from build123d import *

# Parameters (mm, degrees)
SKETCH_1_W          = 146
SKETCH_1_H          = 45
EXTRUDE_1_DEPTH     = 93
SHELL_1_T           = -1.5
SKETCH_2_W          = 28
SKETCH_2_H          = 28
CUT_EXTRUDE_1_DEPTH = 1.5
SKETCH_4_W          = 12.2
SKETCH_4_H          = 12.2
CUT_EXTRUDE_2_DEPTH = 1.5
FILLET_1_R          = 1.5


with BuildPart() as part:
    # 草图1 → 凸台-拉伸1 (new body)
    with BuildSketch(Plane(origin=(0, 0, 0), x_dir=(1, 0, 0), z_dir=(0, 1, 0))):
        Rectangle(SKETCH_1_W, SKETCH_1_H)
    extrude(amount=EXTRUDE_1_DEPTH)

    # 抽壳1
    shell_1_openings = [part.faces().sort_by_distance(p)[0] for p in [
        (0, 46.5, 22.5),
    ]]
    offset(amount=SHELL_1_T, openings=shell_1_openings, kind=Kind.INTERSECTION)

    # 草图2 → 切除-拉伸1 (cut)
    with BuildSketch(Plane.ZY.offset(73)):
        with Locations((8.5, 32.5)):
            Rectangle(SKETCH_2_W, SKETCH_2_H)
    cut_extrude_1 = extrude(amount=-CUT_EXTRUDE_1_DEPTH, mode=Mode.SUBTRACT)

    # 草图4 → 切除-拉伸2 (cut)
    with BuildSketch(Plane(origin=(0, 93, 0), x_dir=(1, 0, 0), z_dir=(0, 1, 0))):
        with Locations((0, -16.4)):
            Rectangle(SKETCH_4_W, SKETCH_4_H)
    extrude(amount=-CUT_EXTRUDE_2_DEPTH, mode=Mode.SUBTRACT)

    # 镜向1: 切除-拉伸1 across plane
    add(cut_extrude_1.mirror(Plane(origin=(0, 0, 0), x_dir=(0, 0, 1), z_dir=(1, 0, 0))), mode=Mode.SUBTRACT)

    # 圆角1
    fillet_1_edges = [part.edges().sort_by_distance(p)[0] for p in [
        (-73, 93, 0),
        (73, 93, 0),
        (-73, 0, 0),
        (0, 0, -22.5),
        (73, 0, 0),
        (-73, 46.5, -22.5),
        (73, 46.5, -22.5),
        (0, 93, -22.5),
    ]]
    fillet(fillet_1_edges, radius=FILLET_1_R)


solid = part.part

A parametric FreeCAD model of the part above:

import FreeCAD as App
import Part
import Sketcher


def edges_at(feature, points):
    """Names of the edges that pass closest to the given points."""
    edges = feature.Shape.Edges
    near = lambda p: min(range(len(edges)), key=lambda i: edges[i].distToShape(Part.Vertex(*p))[0])
    return sorted({f"Edge{near(p) + 1}" for p in points})


def faces_at(feature, points):
    """Names of the faces that lie closest to the given points."""
    faces = feature.Shape.Faces
    near = lambda p: min(range(len(faces)), key=lambda i: faces[i].distToShape(Part.Vertex(*p))[0])
    return sorted({f"Face{near(p) + 1}" for p in points})


def add_polygon(sketch, points):
    """Adds a closed chain of lines whose ends are joined by coincident constraints."""
    first, n = sketch.GeometryCount, len(points)
    for a, b in zip(points, points[1:] + points[:1]):
        sketch.addGeometry(Part.LineSegment(App.Vector(*a, 0), App.Vector(*b, 0)), False)
    for i in range(n):
        sketch.addConstraint(Sketcher.Constraint("Coincident", first + i, 2, first + (i + 1) % n, 1))

doc = App.newDocument("Part")
params = doc.addObject("Spreadsheet::Sheet", "Params")
for row, (alias, value) in enumerate([
    ("sketch1_width", "146 mm"),
    ("sketch1_height", "45 mm"),
    ("pad1_length", "93 mm"),
    ("thickness_wall", "1.5 mm"),
    ("sketch2_width", "28 mm"),
    ("pocket1_length", "1.5 mm"),
    ("sketch3_width", "12.2 mm"),
    ("pocket2_length", "1.5 mm"),
    ("fillet_radius", "1.5 mm"),
], start=1):
    params.set(f"A{row}", alias)
    params.set(f"B{row}", "=" + value)
    params.setAlias(f"B{row}", alias)

body = doc.addObject("PartDesign::Body", "Body")

# Sketch on XZ plane
sketch1 = doc.addObject("Sketcher::SketchObject", "Sketch")
body.addObject(sketch1)
sketch1.AttachmentSupport = (doc.XZ_Plane, [""])
sketch1.MapMode = "FlatFace"
add_polygon(sketch1, [(-73, -22.5), (-73, 22.5), (73, 22.5), (73, -22.5)])  # lines 0-3
sketch1.addConstraint(Sketcher.Constraint("Vertical", 0))
sketch1.addConstraint(Sketcher.Constraint("Horizontal", 1))
sketch1.addConstraint(Sketcher.Constraint("Vertical", 2))
sketch1.addConstraint(Sketcher.Constraint("Horizontal", 3))
sketch1.addConstraint(Sketcher.Constraint("Symmetric", 0, 2, 2, 2, -1, 1))
sketch1.addConstraint(Sketcher.Constraint("DistanceX", 1, 1, 1, 2, 146.0))
sketch1.addConstraint(Sketcher.Constraint("DistanceY", 0, 1, 0, 2, 45.0))
sketch1.setExpression("Constraints[9]", "Params.sketch1_width")
sketch1.setExpression("Constraints[10]", "Params.sketch1_height")
pad1 = doc.addObject("PartDesign::Pad", "Pad")
body.addObject(pad1)
pad1.Profile = sketch1
pad1.setExpression("Length", "Params.pad1_length")
pad1.Reversed = True
doc.recompute()

thickness = doc.addObject("PartDesign::Thickness", "Thickness")
body.addObject(thickness)
thickness.Base = (pad1, faces_at(pad1, [(0, 46.5, 22.5)]))
thickness.setExpression("Value", "Params.thickness_wall")
thickness.Reversed = True
thickness.Join = "Intersection"

# Sketch on YZ plane
sketch2 = doc.addObject("Sketcher::SketchObject", "Sketch001")
body.addObject(sketch2)
sketch2.AttachmentSupport = (doc.YZ_Plane, [""])
sketch2.MapMode = "FlatFace"
sketch2.AttachmentOffset = App.Placement(App.Vector(0, 0, -73), App.Rotation())
add_polygon(sketch2, [(46.5, -5.5), (18.5, -5.5), (18.5, 22.5), (46.5, 22.5)])  # lines 0-3
sketch2.addConstraint(Sketcher.Constraint("Horizontal", 0))
sketch2.addConstraint(Sketcher.Constraint("Vertical", 1))
sketch2.addConstraint(Sketcher.Constraint("Horizontal", 2))
sketch2.addConstraint(Sketcher.Constraint("Vertical", 3))
sketch2.addConstraint(Sketcher.Constraint("Equal", 2, 1))
sketch2.addConstraint(Sketcher.Constraint("DistanceX", 0, 2, 0, 1, 28.0))
sketch2.addConstraint(Sketcher.Constraint("DistanceX", -1, 1, 0, 2, 18.5))
sketch2.addConstraint(Sketcher.Constraint("DistanceY", 0, 2, -1, 1, 5.5))
sketch2.setExpression("Constraints[9]", "Params.sketch2_width")
pocket1 = doc.addObject("PartDesign::Pocket", "Pocket")
body.addObject(pocket1)
pocket1.Profile = sketch2
pocket1.setExpression("Length", "Params.pocket1_length")
pocket1.Reversed = True

# Sketch on XZ plane
sketch3 = doc.addObject("Sketcher::SketchObject", "Sketch002")
body.addObject(sketch3)
sketch3.AttachmentSupport = (doc.XZ_Plane, [""])
sketch3.MapMode = "FlatFace"
sketch3.AttachmentOffset = App.Placement(App.Vector(0, 0, -93), App.Rotation())
add_polygon(sketch3, [(-6.1, 10.3), (-6.1, 22.5), (6.1, 22.5), (6.1, 10.3)])  # lines 0-3
sketch3.addConstraint(Sketcher.Constraint("Vertical", 0))
sketch3.addConstraint(Sketcher.Constraint("Horizontal", 1))
sketch3.addConstraint(Sketcher.Constraint("Vertical", 2))
sketch3.addConstraint(Sketcher.Constraint("Horizontal", 3))
sketch3.addConstraint(Sketcher.Constraint("Equal", 3, 0))
sketch3.addConstraint(Sketcher.Constraint("DistanceX", 1, 1, 1, 2, 12.2))
sketch3.addConstraint(Sketcher.Constraint("DistanceX", 0, 2, -1, 1, 6.1))
sketch3.addConstraint(Sketcher.Constraint("DistanceY", -1, 1, 0, 2, 22.5))
sketch3.setExpression("Constraints[9]", "Params.sketch3_width")
pocket2 = doc.addObject("PartDesign::Pocket", "Pocket001")
body.addObject(pocket2)
pocket2.Profile = sketch3
pocket2.setExpression("Length", "Params.pocket2_length")
pocket2.Reversed = True
doc.recompute()

mirrored = doc.addObject("PartDesign::Mirrored", "Mirrored")
body.addObject(mirrored)
mirrored.Originals = [pocket1]
mirrored.MirrorPlane = (doc.YZ_Plane, [""])
body.Tip = mirrored
doc.recompute()

fillet = doc.addObject("PartDesign::Fillet", "Fillet")
body.addObject(fillet)
fillet.Base = (mirrored, edges_at(mirrored, [
    (-73, 93, 0),
    (73, 93, 0),
    (-73, 0, 0),
    (0, 0, -22.5),
    (73, 0, 0),
    (-73, 46.5, -22.5),
    (73, 46.5, -22.5),
    (0, 93, -22.5),
]))
fillet.setExpression("Radius", "Params.fillet_radius")

doc.recompute()
